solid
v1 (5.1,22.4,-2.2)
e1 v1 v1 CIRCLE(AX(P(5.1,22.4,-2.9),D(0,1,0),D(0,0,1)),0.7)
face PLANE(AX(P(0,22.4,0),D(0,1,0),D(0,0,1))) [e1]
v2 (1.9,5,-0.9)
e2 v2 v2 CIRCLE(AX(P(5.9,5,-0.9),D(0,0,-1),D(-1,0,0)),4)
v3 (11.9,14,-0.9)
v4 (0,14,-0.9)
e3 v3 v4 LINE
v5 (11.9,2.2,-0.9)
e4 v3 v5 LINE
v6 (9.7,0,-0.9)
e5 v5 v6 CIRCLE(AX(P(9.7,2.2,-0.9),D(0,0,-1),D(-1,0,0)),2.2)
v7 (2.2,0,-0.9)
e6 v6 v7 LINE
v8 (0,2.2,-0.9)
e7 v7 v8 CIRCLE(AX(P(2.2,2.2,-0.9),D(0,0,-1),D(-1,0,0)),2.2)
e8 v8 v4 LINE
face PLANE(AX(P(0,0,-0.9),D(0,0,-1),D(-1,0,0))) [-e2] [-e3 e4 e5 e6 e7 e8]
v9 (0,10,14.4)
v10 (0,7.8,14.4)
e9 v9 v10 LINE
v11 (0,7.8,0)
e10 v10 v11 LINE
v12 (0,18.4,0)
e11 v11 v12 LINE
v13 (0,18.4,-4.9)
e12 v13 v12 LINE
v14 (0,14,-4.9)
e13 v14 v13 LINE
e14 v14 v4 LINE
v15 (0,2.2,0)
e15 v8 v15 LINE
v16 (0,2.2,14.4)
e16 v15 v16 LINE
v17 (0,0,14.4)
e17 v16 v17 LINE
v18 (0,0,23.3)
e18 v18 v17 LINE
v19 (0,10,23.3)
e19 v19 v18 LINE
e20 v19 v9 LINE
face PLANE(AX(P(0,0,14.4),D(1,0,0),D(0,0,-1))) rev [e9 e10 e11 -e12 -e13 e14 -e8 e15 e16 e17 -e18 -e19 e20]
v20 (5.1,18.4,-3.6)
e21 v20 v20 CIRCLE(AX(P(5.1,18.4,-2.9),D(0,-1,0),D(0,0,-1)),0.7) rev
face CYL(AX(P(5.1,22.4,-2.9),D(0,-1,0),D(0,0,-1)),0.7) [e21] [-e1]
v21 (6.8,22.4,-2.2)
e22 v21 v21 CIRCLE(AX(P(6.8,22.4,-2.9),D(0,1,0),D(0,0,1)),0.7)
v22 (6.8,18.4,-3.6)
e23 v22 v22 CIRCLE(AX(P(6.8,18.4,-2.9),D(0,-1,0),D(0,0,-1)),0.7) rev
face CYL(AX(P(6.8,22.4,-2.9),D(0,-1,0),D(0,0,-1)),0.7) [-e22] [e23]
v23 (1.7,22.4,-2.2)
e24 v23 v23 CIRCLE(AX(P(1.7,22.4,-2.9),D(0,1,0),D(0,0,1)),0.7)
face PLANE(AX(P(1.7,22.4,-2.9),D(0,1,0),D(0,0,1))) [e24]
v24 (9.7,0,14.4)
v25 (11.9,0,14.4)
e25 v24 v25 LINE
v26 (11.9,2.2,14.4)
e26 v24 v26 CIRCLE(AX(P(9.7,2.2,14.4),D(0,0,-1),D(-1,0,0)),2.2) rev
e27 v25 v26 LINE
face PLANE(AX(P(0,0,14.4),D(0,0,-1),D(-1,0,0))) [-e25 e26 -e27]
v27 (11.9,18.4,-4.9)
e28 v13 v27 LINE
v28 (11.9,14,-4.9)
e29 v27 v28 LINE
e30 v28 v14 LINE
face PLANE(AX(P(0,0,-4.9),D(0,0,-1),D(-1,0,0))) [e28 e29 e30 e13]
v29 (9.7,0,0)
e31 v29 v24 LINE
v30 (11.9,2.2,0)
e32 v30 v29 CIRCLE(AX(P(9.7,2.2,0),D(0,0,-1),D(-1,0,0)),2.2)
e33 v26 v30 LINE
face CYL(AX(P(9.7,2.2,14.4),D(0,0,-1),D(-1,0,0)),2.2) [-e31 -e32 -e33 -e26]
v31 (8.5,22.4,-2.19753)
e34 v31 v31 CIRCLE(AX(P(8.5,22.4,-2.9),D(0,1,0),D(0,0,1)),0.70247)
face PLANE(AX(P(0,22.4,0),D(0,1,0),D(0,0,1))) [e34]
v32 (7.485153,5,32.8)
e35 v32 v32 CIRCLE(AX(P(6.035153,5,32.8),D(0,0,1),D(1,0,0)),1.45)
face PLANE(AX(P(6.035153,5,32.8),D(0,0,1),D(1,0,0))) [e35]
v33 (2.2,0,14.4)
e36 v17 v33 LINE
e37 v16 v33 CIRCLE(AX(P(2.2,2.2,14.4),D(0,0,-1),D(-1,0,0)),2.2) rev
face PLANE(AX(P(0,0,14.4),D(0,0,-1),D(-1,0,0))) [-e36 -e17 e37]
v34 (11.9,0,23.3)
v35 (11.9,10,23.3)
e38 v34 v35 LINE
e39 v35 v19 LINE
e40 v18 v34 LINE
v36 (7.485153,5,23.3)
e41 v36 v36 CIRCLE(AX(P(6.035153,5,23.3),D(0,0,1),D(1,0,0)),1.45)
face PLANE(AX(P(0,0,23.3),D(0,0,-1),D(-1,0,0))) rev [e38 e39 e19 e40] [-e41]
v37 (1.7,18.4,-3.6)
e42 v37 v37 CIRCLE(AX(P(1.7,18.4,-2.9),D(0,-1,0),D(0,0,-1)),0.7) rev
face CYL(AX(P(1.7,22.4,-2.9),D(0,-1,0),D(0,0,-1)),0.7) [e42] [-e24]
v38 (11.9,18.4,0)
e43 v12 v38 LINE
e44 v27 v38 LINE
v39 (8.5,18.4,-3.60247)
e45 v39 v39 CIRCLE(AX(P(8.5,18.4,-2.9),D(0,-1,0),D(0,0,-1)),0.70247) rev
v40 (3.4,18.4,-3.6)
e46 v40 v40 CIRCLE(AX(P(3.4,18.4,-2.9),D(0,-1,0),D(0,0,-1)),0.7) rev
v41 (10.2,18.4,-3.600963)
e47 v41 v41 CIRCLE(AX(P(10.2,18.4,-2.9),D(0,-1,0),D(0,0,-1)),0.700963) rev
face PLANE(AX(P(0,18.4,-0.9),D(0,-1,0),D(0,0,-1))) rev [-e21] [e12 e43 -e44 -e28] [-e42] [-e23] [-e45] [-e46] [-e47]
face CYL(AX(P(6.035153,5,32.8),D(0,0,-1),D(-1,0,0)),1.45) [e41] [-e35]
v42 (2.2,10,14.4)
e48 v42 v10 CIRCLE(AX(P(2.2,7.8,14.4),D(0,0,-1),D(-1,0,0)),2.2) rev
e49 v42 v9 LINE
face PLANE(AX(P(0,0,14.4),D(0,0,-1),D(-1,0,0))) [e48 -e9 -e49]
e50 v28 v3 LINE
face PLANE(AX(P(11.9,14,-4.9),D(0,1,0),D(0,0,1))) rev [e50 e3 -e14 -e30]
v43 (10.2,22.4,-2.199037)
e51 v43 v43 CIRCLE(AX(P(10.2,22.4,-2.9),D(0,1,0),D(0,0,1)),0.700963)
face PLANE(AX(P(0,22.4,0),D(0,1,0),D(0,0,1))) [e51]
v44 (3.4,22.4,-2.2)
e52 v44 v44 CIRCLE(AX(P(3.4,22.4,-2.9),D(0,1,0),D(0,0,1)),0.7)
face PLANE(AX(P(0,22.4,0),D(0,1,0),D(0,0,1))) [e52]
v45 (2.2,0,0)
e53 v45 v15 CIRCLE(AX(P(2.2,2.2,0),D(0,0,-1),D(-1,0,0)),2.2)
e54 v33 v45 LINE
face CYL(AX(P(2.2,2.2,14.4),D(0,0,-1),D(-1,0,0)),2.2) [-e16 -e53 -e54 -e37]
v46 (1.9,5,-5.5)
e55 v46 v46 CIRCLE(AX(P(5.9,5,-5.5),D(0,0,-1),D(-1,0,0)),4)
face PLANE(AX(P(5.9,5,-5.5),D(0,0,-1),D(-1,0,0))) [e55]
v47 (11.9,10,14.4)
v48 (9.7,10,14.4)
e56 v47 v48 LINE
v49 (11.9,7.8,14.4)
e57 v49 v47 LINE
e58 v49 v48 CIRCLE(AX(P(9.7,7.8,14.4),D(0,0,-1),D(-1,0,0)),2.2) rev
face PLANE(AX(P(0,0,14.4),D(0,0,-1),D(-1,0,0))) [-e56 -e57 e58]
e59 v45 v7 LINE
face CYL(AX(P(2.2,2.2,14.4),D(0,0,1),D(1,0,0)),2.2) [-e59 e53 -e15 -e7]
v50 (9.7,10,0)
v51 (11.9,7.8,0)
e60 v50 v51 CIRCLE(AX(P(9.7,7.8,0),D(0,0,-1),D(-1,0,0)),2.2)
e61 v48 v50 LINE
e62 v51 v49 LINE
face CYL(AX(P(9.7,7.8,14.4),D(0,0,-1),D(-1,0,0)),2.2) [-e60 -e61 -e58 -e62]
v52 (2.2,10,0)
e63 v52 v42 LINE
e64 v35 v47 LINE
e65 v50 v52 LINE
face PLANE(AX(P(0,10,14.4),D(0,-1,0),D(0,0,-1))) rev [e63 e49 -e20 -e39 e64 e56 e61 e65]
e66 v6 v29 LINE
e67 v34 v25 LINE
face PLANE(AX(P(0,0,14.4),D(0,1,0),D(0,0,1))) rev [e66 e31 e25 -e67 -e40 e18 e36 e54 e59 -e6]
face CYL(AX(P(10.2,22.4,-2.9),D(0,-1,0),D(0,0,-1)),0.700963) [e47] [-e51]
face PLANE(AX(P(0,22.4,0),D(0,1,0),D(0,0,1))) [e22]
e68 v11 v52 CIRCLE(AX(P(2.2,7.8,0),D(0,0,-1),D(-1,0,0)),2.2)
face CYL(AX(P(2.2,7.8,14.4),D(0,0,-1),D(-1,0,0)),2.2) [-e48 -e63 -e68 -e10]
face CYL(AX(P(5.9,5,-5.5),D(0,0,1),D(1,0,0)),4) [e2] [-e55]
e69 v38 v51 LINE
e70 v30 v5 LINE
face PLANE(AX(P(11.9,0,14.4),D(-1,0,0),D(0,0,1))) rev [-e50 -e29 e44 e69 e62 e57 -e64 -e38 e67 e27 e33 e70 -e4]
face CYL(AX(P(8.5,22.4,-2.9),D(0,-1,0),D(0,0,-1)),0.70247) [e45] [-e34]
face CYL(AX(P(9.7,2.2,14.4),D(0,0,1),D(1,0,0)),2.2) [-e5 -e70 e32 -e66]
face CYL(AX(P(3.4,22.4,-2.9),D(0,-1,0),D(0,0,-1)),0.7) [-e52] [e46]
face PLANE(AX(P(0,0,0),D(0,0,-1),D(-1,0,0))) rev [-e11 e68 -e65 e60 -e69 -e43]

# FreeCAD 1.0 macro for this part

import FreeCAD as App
import Part
import Sketcher
from FreeCAD import Vector
Q = App.Units.Quantity


def edges_at(feature, points):
    """Names of the edges that pass closest to the given points."""
    edges = feature.Shape.Edges
    near = lambda p: min(range(len(edges)), key=lambda i: edges[i].distToShape(Part.Vertex(*p))[0])
    return sorted({f"Edge{near(p) + 1}" for p in points})


def add_polygon(sketch, points):
    """Adds a closed chain of lines whose ends are joined by coincident constraints."""
    first, n = sketch.GeometryCount, len(points)
    for a, b in zip(points, points[1:] + points[:1]):
        sketch.addGeometry(Part.LineSegment(App.Vector(*a, 0), App.Vector(*b, 0)), False)
    for i in range(n):
        sketch.addConstraint(Sketcher.Constraint("Coincident", first + i, 2, first + (i + 1) % n, 1))

doc = App.newDocument("Part")
body = doc.addObject("PartDesign::Body", "Body")

# Sketch on XY plane
sketch1 = doc.addObject("Sketcher::SketchObject", "Sketch")
body.addObject(sketch1)
sketch1.AttachmentSupport = (doc.XY_Plane, [""])
sketch1.MapMode = "FlatFace"
add_polygon(sketch1, [(0, 10), (0, 0), (12, 0), (12, 10)])  # lines 0-3
sketch1.addConstraint([
    Sketcher.Constraint("Vertical", 0),
    Sketcher.Constraint("Horizontal", 1),
    Sketcher.Constraint("Vertical", 2),
    Sketcher.Constraint("Horizontal", 3),
    Sketcher.Constraint("Coincident", 0, 2, -1, 1),
    Sketcher.Constraint("DistanceY", 0, 2, 0, 1, Q("10 mm")),
    Sketcher.Constraint("DistanceX", 1, 1, 1, 2, Q("11.9 mm")),
])
pad1 = doc.addObject("PartDesign::Pad", "Pad")
body.addObject(pad1)
pad1.Profile = sketch1
pad1.Length = 14.4
doc.recompute()

fillet = doc.addObject("PartDesign::Fillet", "Fillet")
body.addObject(fillet)
fillet.Base = (pad1, edges_at(pad1, [
    (0, 10, 7.2),
    (11.9, 10, 7.2),
    (11.9, 0, 7.2),
    (0, 0, 7.2),
]))
fillet.Radius = 2.2

# Sketch on XY plane
sketch2 = doc.addObject("Sketcher::SketchObject", "Sketch001")
body.addObject(sketch2)
sketch2.AttachmentSupport = (doc.XY_Plane, [""])
sketch2.MapMode = "FlatFace"
sketch2.AttachmentOffset = App.Placement(Vector(0, 0, 14.4), App.Rotation())
add_polygon(sketch2, [(0, 10), (0, 0), (12, 0), (12, 10)])  # lines 0-3
sketch2.addConstraint([
    Sketcher.Constraint("Vertical", 0),
    Sketcher.Constraint("Horizontal", 1),
    Sketcher.Constraint("Vertical", 2),
    Sketcher.Constraint("Horizontal", 3),
    Sketcher.Constraint("Coincident", 0, 2, -1, 1),
    Sketcher.Constraint("DistanceY", 0, 2, 0, 1, Q("10 mm")),
    Sketcher.Constraint("DistanceX", 1, 1, 1, 2, Q("11.9 mm")),
])
pad2 = doc.addObject("PartDesign::Pad", "Pad001")
body.addObject(pad2)
pad2.Profile = sketch2
pad2.Length = 8.9

# Sketch on XY plane
sketch3 = doc.addObject("Sketcher::SketchObject", "Sketch002")
body.addObject(sketch3)
sketch3.AttachmentSupport = (doc.XY_Plane, [""])
sketch3.MapMode = "FlatFace"
sketch3.AttachmentOffset = App.Placement(Vector(0, 0, 23.3), App.Rotation())
sketch3.addGeometry(Part.Circle(Vector(6, 5, 0), Vector(0, 0, 1), 1.4), False)
sketch3.addConstraint([
    Sketcher.Constraint("Diameter", 0, Q("2.9 mm")),
    Sketcher.Constraint("DistanceY", -1, 1, 0, 3, Q("5 mm")),
    Sketcher.Constraint("DistanceX", -1, 1, 0, 3, Q("6.035153 mm")),
])
pad3 = doc.addObject("PartDesign::Pad", "Pad002")
body.addObject(pad3)
pad3.Profile = sketch3
pad3.Length = 9.5

# Sketch on XY plane
sketch4 = doc.addObject("Sketcher::SketchObject", "Sketch003")
body.addObject(sketch4)
sketch4.AttachmentSupport = (doc.XY_Plane, [""])
sketch4.MapMode = "FlatFace"
add_polygon(sketch4, [(12, 18), (12, 0), (0, 0), (0, 18)])  # lines 0-3
sketch4.addConstraint([
    Sketcher.Constraint("Vertical", 0),
    Sketcher.Constraint("Horizontal", 1),
    Sketcher.Constraint("Vertical", 2),
    Sketcher.Constraint("Horizontal", 3),
    Sketcher.Constraint("Coincident", 1, 2, -1, 1),
    Sketcher.Constraint("DistanceX", 1, 2, 1, 1, Q("11.9 mm")),
    Sketcher.Constraint("DistanceY", 0, 2, 0, 1, Q("18.4 mm")),
])
pad4 = doc.addObject("PartDesign::Pad", "Pad003")
body.addObject(pad4)
pad4.Profile = sketch4
pad4.Length = 0.9
pad4.Reversed = True
doc.recompute()

fillet2 = doc.addObject("PartDesign::Fillet", "Fillet001")
body.addObject(fillet2)
fillet2.Base = (pad4, edges_at(pad4, [(0, 0, -0.45), (11.9, 0, -0.45)]))
fillet2.Radius = 2.2

# Sketch on XY plane
sketch5 = doc.addObject("Sketcher::SketchObject", "Sketch004")
body.addObject(sketch5)
sketch5.AttachmentSupport = (doc.XY_Plane, [""])
sketch5.MapMode = "FlatFace"
sketch5.AttachmentOffset = App.Placement(Vector(0, 0, -0.9), App.Rotation())
sketch5.addGeometry(Part.Circle(Vector(5.9, 5, 0), Vector(0, 0, 1), 4), False)
sketch5.addConstraint([
    Sketcher.Constraint("Diameter", 0, Q("8 mm")),
    Sketcher.Constraint("DistanceY", -1, 1, 0, 3, Q("5 mm")),
    Sketcher.Constraint("DistanceX", -1, 1, 0, 3, Q("5.9 mm")),
])
pad5 = doc.addObject("PartDesign::Pad", "Pad004")
body.addObject(pad5)
pad5.Profile = sketch5
pad5.Length = 4.6
pad5.Reversed = True

# Sketch on XY plane
sketch6 = doc.addObject("Sketcher::SketchObject", "Sketch005")
body.addObject(sketch6)
sketch6.AttachmentSupport = (doc.XY_Plane, [""])
sketch6.MapMode = "FlatFace"
sketch6.AttachmentOffset = App.Placement(Vector(0, 0, -0.9), App.Rotation())
add_polygon(sketch6, [(11.9, 18.4), (11.9, 14), (0, 14), (0, 18.4)])  # lines 0-3
sketch6.addConstraint([
    Sketcher.Constraint("Vertical", 0),
    Sketcher.Constraint("Horizontal", 1),
    Sketcher.Constraint("Vertical", 2),
    Sketcher.Constraint("Horizontal", 3),
    Sketcher.Constraint("PointOnObject", 1, 2, -2),
    Sketcher.Constraint("DistanceX", 1, 2, 1, 1, Q("11.9 mm")),
    Sketcher.Constraint("DistanceY", 0, 2, 0, 1, Q("4.4 mm")),
    Sketcher.Constraint("DistanceY", -1, 1, 0, 2, Q("14 mm")),
])
pad6 = doc.addObject("PartDesign::Pad", "Pad005")
body.addObject(pad6)
pad6.Profile = sketch6
pad6.Length = 4
pad6.Reversed = True

# Sketch on XZ plane
sketch7 = doc.addObject("Sketcher::SketchObject", "Sketch006")
body.addObject(sketch7)
sketch7.AttachmentSupport = (doc.XZ_Plane, [""])
sketch7.MapMode = "FlatFace"
sketch7.AttachmentOffset = App.Placement(Vector(0, 0, -18.4), App.Rotation())
sketch7.addGeometry([
    Part.Circle(Vector(3.4, -2.9, 0), Vector(0, 0, 1), 0.7),  # 0
    Part.Circle(Vector(5.1, -2.9, 0), Vector(0, 0, 1), 0.7),  # 1
    Part.Circle(Vector(6.8, -2.9, 0), Vector(0, 0, 1), 0.7),  # 2
    Part.Circle(Vector(8.5, -2.9, 0), Vector(0, 0, 1), 0.7),  # 3
    Part.Circle(Vector(10.2, -2.9, 0), Vector(0, 0, 1), 0.7),  # 4
    Part.Circle(Vector(1.7, -2.9, 0), Vector(0, 0, 1), 0.7),  # 5
], False)
sketch7.addConstraint([
    Sketcher.Constraint("Equal", 0, 1),
    Sketcher.Constraint("Equal", 1, 2),
    Sketcher.Constraint("Equal", 2, 5),
    Sketcher.Constraint("Horizontal", 0, 3, 1, 3),
    Sketcher.Constraint("Horizontal", 1, 3, 2, 3),
    Sketcher.Constraint("Horizontal", 2, 3, 3, 3),
    Sketcher.Constraint("Horizontal", 3, 3, 4, 3),
    Sketcher.Constraint("Horizontal", 4, 3, 5, 3),
    Sketcher.Constraint("Diameter", 0, Q("1.4 mm")),
    Sketcher.Constraint("DistanceX", -1, 1, 0, 3, Q("3.4 mm")),
    Sketcher.Constraint("DistanceY", 0, 3, -1, 1, Q("2.9 mm")),
    Sketcher.Constraint("DistanceX", -1, 1, 1, 3, Q("5.1 mm")),
    Sketcher.Constraint("DistanceX", -1, 1, 2, 3, Q("6.8 mm")),
    Sketcher.Constraint("DistanceX", -1, 1, 3, 3, Q("8.5 mm")),
    Sketcher.Constraint("DistanceX", -1, 1, 4, 3, Q("10.2 mm")),
    Sketcher.Constraint("DistanceX", -1, 1, 5, 3, Q("1.7 mm")),
    Sketcher.Constraint("Diameter", 3, Q("1.40494 mm")),
    Sketcher.Constraint("Diameter", 4, Q("1.401927 mm")),
])
pad7 = doc.addObject("PartDesign::Pad", "Pad006")
body.addObject(pad7)
pad7.Profile = sketch7
pad7.Length = 4
pad7.Reversed = True

doc.recompute()
